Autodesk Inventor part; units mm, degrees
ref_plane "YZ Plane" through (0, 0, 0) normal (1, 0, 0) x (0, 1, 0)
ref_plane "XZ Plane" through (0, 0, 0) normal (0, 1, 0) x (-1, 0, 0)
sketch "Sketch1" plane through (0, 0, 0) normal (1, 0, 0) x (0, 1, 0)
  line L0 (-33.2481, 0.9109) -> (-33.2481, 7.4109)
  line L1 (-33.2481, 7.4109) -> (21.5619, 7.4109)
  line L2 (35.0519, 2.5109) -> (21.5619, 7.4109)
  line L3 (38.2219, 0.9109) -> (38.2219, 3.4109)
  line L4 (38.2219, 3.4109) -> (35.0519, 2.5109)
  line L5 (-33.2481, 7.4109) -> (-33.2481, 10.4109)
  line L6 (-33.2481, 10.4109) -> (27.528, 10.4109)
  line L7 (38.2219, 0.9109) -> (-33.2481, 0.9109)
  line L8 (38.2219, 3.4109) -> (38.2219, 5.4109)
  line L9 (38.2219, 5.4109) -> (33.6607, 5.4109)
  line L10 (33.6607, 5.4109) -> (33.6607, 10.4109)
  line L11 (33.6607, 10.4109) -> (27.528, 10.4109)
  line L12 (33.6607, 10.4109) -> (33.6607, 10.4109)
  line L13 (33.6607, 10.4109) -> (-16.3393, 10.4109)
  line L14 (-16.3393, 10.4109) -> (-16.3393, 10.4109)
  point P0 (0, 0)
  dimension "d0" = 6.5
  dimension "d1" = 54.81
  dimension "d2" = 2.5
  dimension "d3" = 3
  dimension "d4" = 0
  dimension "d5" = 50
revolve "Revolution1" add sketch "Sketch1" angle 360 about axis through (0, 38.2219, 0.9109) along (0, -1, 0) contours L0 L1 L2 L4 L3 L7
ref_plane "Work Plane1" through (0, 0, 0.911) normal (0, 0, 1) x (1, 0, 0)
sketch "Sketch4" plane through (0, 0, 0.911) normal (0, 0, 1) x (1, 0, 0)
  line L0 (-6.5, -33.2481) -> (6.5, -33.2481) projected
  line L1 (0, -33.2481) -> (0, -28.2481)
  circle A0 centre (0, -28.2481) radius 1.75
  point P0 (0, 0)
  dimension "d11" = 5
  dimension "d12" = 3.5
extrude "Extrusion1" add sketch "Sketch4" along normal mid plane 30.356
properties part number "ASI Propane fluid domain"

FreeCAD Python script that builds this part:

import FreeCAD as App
import Part
import Sketcher
Q = App.Units.Quantity


def add_polygon(sketch, points):
    """Adds a closed chain of lines whose ends are joined by coincident constraints."""
    first, n = sketch.GeometryCount, len(points)
    for a, b in zip(points, points[1:] + points[:1]):
        sketch.addGeometry(Part.LineSegment(App.Vector(*a, 0), App.Vector(*b, 0)), False)
    for i in range(n):
        sketch.addConstraint(Sketcher.Constraint("Coincident", first + i, 2, first + (i + 1) % n, 1))

doc = App.newDocument("Part")
params = doc.addObject("Spreadsheet::Sheet", "Params")
for row, (alias, value) in enumerate([
    ("sketch1_height", "6.5 mm"),
    ("sketch1_height2", "2.5 mm"),
    ("sketch1_width", "54.81 mm"),
    ("sketch1_width2", "71.47 mm"),
    ("revolution_angle", "360 deg"),
    ("sketch2_diameter", "3.5 mm"),
    ("pad1_length", "30.356 mm"),
], start=1):
    params.set(f"A{row}", alias)
    params.set(f"B{row}", "=" + value)
    params.setAlias(f"B{row}", alias)

body = doc.addObject("PartDesign::Body", "Body")

# Sketch on YZ plane
sketch1 = body.newObject("Sketcher::SketchObject", "Sketch")
sketch1.AttachmentSupport = (doc.getObject("YZ_Plane"), [""])
sketch1.MapMode = "FlatFace"
add_polygon(sketch1, [(-33.2, 7.4), (-33.2, 0.9), (38.2, 0.9), (38.2, 3.4), (35.1, 2.5), (21.6, 7.4)])  # lines 0-5
sketch1.addGeometry(Part.LineSegment(App.Vector(38.2, 0.9, 0), App.Vector(-33.2, 0.9, 0)), True)  # axis
sketch1.addConstraint(Sketcher.Constraint("Vertical", 0))
sketch1.addConstraint(Sketcher.Constraint("Horizontal", 1))
sketch1.addConstraint(Sketcher.Constraint("Vertical", 2))
sketch1.addConstraint(Sketcher.Constraint("Horizontal", 5))
sketch1.addConstraint(Sketcher.Constraint("Horizontal", 6))
sketch1.addConstraint(Sketcher.Constraint("Coincident", 6, 1, 1, 2))
sketch1.addConstraint(Sketcher.Constraint("Vertical", 5, 2, 6, 2))
sketch1.addConstraint(Sketcher.Constraint("DistanceY", 0, 2, 0, 1, Q("6.5 mm")))
sketch1.addConstraint(Sketcher.Constraint("DistanceY", 2, 1, 2, 2, Q("2.5 mm")))
sketch1.addConstraint(Sketcher.Constraint("DistanceX", 5, 2, 5, 1, Q("54.81 mm")))
sketch1.addConstraint(Sketcher.Constraint("DistanceX", 1, 1, 1, 2, Q("71.47 mm")))
sketch1.addConstraint(Sketcher.Constraint("Angle", 3, Q("-164.1501 deg")))
sketch1.addConstraint(Sketcher.Constraint("DistanceY", 3, 2, 2, 2, Q("0.9 mm")))
sketch1.addConstraint(Sketcher.Constraint("DistanceX", 0, 2, -1, 1, Q("33.248 mm")))
sketch1.addConstraint(Sketcher.Constraint("DistanceY", -1, 1, 0, 2, Q("0.911 mm")))
sketch1.setExpression("Constraints[13]", "Params.sketch1_height")
sketch1.setExpression("Constraints[14]", "Params.sketch1_height2")
sketch1.setExpression("Constraints[15]", "Params.sketch1_width")
sketch1.setExpression("Constraints[16]", "Params.sketch1_width2")
revolution = body.newObject("PartDesign::Revolution", "Revolution")
revolution.Profile = sketch1
revolution.ReferenceAxis = (sketch1, ["Axis0"])
revolution.setExpression("Angle", "Params.revolution_angle")

# Sketch on XY plane
sketch2 = body.newObject("Sketcher::SketchObject", "Sketch001")
sketch2.AttachmentSupport = (doc.getObject("XY_Plane"), [""])
sketch2.MapMode = "FlatFace"
sketch2.AttachmentOffset = App.Placement(App.Vector(0, 0, 0.911), App.Rotation())
sketch2.addGeometry(Part.Circle(App.Vector(0, -28.2, 0), App.Vector(0, 0, 1), 1.8), False)
sketch2.addConstraint(Sketcher.Constraint("PointOnObject", 0, 3, -2))
sketch2.addConstraint(Sketcher.Constraint("Diameter", 0, Q("3.5 mm")))
sketch2.addConstraint(Sketcher.Constraint("DistanceY", 0, 3, -1, 1, Q("28.248 mm")))
sketch2.setExpression("Constraints[1]", "Params.sketch2_diameter")
pad1 = body.newObject("PartDesign::Pad", "Pad")
pad1.Profile = sketch2
pad1.setExpression("Length", "Params.pad1_length")
pad1.Midplane = True

doc.recompute()
